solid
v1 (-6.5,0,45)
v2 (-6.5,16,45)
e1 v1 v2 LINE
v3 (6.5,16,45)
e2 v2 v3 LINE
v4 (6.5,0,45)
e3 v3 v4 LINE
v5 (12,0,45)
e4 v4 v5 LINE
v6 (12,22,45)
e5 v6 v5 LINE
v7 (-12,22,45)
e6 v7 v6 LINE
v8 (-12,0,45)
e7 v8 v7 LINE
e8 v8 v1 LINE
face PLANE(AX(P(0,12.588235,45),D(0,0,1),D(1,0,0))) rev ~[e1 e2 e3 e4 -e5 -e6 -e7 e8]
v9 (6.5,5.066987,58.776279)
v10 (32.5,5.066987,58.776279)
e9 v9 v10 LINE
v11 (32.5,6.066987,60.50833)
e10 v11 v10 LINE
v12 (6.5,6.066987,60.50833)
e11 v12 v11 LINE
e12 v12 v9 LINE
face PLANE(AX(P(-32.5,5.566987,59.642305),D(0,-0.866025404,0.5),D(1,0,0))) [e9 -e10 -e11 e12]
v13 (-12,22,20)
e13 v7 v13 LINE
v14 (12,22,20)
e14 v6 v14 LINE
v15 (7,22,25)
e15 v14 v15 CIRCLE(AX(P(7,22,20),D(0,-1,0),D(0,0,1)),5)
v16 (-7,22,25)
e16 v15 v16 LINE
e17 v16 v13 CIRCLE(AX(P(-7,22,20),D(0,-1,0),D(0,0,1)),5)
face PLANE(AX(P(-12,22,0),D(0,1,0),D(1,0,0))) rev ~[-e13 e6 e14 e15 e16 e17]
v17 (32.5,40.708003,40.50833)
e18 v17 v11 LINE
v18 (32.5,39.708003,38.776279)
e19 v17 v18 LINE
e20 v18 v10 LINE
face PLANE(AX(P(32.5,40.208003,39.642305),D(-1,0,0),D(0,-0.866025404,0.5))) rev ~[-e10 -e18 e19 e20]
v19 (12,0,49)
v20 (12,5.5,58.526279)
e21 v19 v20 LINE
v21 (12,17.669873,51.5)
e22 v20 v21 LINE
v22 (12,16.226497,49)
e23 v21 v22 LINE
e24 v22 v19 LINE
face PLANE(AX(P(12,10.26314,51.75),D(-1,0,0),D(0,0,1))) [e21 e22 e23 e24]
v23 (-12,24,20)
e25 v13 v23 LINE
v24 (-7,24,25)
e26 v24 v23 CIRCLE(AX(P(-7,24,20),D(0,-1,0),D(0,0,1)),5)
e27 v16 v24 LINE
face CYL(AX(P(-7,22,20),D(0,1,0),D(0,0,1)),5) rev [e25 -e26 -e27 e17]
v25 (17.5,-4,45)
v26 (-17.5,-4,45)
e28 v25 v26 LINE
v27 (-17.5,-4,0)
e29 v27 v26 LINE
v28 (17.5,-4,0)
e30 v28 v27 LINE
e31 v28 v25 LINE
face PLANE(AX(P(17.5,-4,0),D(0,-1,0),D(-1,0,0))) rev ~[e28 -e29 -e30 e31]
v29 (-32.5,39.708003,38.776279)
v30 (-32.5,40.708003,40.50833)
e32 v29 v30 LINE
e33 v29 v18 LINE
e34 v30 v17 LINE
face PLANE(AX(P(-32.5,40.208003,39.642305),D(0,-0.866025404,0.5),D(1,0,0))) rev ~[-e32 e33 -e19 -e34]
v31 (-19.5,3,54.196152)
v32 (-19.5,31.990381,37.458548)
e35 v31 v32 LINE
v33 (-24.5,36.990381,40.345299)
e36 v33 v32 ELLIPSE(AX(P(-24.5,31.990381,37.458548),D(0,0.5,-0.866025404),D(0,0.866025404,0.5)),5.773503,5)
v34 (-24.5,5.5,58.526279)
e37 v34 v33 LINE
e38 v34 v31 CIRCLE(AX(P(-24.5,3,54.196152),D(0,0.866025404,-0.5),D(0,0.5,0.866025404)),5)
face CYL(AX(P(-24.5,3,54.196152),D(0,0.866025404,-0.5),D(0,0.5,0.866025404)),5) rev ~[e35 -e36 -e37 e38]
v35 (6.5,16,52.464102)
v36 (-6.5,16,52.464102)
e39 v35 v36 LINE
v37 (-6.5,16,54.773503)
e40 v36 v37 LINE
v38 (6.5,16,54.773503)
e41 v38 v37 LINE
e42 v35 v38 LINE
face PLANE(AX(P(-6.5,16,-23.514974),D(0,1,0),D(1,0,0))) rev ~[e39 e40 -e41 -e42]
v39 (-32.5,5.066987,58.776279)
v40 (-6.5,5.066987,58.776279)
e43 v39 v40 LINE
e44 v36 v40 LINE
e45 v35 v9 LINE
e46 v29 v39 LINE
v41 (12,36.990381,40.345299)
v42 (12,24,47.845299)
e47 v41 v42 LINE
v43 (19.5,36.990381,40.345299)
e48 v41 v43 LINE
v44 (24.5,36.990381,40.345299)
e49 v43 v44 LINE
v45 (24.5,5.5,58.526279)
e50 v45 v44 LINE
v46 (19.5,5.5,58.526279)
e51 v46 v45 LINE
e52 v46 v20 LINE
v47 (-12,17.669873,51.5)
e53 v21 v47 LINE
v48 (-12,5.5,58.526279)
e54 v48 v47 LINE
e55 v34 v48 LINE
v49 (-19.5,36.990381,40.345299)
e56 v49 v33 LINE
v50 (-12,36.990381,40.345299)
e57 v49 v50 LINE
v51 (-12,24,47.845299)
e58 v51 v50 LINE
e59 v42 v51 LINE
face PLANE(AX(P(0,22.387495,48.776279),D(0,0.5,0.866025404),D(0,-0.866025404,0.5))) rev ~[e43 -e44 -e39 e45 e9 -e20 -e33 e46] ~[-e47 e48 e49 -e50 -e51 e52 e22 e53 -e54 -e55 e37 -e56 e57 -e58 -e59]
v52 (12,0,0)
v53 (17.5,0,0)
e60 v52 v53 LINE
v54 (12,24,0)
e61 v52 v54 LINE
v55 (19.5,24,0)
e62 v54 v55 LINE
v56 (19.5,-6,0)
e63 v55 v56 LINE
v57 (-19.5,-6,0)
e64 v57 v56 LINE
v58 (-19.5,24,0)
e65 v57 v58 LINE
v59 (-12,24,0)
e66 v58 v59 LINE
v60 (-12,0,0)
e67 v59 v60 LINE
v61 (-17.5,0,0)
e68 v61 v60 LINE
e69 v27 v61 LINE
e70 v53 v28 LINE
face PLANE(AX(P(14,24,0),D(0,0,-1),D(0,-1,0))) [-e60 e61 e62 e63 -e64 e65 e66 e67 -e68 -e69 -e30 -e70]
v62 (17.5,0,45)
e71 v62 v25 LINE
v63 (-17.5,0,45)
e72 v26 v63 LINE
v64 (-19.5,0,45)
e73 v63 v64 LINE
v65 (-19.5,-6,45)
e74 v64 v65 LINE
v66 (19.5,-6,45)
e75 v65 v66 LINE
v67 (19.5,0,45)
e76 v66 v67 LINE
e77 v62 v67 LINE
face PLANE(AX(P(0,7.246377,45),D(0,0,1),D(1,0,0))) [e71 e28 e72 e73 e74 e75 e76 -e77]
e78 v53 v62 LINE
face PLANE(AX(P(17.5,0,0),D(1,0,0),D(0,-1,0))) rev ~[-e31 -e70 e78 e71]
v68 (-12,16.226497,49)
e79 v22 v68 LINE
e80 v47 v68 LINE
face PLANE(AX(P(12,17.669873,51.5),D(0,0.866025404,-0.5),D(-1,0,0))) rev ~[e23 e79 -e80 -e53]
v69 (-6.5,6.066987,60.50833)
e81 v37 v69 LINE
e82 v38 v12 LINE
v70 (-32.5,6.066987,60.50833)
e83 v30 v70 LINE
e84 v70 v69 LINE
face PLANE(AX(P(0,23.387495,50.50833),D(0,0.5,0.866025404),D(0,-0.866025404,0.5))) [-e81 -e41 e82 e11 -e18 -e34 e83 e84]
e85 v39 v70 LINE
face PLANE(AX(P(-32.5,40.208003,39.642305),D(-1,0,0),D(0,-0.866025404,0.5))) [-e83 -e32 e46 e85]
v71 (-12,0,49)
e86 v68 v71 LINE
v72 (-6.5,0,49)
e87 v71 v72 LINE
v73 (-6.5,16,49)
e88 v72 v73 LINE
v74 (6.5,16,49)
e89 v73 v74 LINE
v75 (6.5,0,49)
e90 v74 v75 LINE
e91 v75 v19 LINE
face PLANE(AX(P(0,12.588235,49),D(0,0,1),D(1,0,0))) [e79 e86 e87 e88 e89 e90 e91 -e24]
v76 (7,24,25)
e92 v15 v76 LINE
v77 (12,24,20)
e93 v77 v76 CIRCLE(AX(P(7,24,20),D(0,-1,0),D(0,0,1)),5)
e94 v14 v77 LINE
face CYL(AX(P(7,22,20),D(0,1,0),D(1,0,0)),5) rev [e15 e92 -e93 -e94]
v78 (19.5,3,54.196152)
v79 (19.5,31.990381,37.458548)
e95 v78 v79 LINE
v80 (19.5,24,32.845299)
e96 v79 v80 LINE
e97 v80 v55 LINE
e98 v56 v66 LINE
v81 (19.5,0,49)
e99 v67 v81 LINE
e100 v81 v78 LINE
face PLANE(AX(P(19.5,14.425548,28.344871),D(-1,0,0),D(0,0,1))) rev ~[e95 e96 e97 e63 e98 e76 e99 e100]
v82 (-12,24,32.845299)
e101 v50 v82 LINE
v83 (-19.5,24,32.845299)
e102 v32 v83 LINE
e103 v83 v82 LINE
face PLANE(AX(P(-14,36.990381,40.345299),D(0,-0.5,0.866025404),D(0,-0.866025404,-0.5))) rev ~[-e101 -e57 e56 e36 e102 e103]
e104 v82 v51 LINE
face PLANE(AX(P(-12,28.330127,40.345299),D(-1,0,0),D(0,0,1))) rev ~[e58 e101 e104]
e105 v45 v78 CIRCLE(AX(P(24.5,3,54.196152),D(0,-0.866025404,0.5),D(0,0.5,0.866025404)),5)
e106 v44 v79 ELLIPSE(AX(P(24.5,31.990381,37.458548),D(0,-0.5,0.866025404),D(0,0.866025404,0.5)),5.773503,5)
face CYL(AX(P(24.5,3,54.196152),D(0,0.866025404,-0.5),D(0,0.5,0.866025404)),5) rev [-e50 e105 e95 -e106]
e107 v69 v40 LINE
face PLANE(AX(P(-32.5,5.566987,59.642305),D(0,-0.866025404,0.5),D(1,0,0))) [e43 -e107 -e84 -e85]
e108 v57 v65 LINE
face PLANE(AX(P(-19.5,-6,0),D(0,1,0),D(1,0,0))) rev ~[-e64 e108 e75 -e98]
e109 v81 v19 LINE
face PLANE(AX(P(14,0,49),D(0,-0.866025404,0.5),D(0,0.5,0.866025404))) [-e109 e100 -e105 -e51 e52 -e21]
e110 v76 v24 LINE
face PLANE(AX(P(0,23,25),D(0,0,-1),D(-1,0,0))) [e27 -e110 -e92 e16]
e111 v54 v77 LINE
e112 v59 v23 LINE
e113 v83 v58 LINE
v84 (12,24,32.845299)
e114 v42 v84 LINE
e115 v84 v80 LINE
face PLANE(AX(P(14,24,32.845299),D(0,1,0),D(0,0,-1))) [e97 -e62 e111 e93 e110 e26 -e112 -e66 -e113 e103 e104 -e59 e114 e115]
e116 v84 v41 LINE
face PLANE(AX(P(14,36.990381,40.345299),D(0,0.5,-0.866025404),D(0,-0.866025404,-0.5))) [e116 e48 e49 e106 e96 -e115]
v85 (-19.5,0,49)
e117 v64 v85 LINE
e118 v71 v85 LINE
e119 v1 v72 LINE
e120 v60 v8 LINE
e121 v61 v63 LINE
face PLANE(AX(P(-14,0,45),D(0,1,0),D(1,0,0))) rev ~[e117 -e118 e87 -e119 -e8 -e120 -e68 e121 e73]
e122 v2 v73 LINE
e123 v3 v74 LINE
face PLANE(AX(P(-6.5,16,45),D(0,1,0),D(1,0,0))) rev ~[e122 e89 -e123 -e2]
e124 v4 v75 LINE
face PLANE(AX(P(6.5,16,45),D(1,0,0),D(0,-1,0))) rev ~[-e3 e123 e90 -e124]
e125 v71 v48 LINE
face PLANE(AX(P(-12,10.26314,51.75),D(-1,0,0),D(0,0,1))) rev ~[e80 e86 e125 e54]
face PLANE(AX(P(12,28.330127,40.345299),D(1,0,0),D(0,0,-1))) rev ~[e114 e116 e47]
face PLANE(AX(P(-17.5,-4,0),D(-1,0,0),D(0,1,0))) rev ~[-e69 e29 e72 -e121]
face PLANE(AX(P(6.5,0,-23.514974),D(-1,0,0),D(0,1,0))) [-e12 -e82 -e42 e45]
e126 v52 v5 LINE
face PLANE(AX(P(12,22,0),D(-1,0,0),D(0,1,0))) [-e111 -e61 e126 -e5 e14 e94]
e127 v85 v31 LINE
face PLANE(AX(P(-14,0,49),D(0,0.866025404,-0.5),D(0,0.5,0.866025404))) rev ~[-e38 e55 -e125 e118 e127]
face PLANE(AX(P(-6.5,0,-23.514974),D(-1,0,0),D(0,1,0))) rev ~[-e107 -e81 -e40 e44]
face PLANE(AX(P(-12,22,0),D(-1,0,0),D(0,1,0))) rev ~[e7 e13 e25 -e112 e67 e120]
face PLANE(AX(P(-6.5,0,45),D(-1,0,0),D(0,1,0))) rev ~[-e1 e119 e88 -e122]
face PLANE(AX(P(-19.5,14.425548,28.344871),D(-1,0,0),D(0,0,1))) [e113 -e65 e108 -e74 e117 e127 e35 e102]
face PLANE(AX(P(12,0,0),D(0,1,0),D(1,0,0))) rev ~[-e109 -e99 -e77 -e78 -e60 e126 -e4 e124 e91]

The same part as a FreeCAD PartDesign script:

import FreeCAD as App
import Part
import Sketcher
from FreeCAD import Vector
Q = App.Units.Quantity


def edges_at(feature, points):
    """Names of the edges that pass closest to the given points."""
    edges = feature.Shape.Edges
    near = lambda p: min(range(len(edges)), key=lambda i: edges[i].distToShape(Part.Vertex(*p))[0])
    return sorted({f"Edge{near(p) + 1}" for p in points})

doc = App.newDocument("Part")
params = doc.addObject("Spreadsheet::Sheet", "Params")
for row, (alias, value) in enumerate([
    ("sketch1_width", "39 mm"),
    ("sketch1_width2", "28 mm"),
    ("sketch1_width3", "24 mm"),
    ("sketch1_height", "22 mm"),
    ("sketch1_height2", "8 mm"),
    ("pad1_length", "45 mm"),
    ("sketch2_width", "13 mm"),
    ("sketch2_width2", "28 mm"),
    ("sketch2_height", "24 mm"),
    ("sketch2_height2", "16 mm"),
    ("pad2_length", "4 mm"),
    ("sketch3_width", "24 mm"),
    ("sketch3_height", "2 mm"),
    ("pocket1_length", "25 mm"),
    ("sketch4_width", "40 mm"),
    ("sketch4_height", "65 mm"),
    ("pad3_length", "2 mm"),
    ("sketch5_width", "13 mm"),
    ("sketch5_height", "16 mm"),
    ("sketch6_height", "15 mm"),
    ("pad4_length", "2 mm"),
    ("sketch7_height", "15 mm"),
    ("pad5_length", "2 mm"),
    ("sketch8_width", "22 mm"),
    ("pad6_length", "2 mm"),
    ("sketch9_width", "22 mm"),
    ("pad7_length", "2 mm"),
    ("fillet_radius", "5 mm"),
    ("sketch10_width", "22 mm"),
    ("sketch10_width2", "2 mm"),
    ("sketch10_height", "45 mm"),
    ("sketch10_height2", "4 mm"),
    ("sketch10_length", "11 mm"),
    ("pad8_length", "5.5 mm"),
    ("sketch11_width", "22 mm"),
    ("sketch11_width2", "2 mm"),
    ("sketch11_height", "4 mm"),
    ("sketch11_height2", "45 mm"),
    ("sketch11_length", "15 mm"),
    ("pad9_length", "5.5 mm"),
    ("sketch12_width", "24 mm"),
    ("sketch12_height", "5 mm"),
    ("pad10_length", "3 mm"),
    ("fillet2_radius", "5 mm"),
], start=1):
    params.set(f"A{row}", alias)
    params.set(f"B{row}", "=" + value)
    params.setAlias(f"B{row}", alias)

body = doc.addObject("PartDesign::Body", "Body")

# Sketch on XY plane
sketch1 = body.newObject("Sketcher::SketchObject", "Sketch")
sketch1.AttachmentSupport = (doc.getObject("XY_Plane"), [""])
sketch1.MapMode = "FlatFace"
sketch1.addGeometry([
    Part.LineSegment(Vector(-14, 24, 0), Vector(-14, 2, 0)),  # 0
    Part.LineSegment(Vector(-14, 2, 0), Vector(-19.5, 2, 0)),  # 1
    Part.LineSegment(Vector(-19.5, 2, 0), Vector(-19.5, -6, 0)),  # 2
    Part.LineSegment(Vector(-19.5, -6, 0), Vector(19.5, -6, 0)),  # 3
    Part.LineSegment(Vector(19.5, -6, 0), Vector(19.5, 2, 0)),  # 4
    Part.LineSegment(Vector(19.5, 2, 0), Vector(14, 2, 0)),  # 5
    Part.LineSegment(Vector(14, 2, 0), Vector(14, 24, 0)),  # 6
    Part.LineSegment(Vector(14, 24, 0), Vector(-14, 24, 0)),  # 7
    Part.LineSegment(Vector(-17.5, 0, 0), Vector(-12, 0, 0)),  # 8
    Part.LineSegment(Vector(-12, 0, 0), Vector(-12, 22, 0)),  # 9
    Part.LineSegment(Vector(-12, 22, 0), Vector(12, 22, 0)),  # 10
    Part.LineSegment(Vector(12, 22, 0), Vector(12, 0, 0)),  # 11
    Part.LineSegment(Vector(12, 0, 0), Vector(17.5, 0, 0)),  # 12
    Part.LineSegment(Vector(17.5, 0, 0), Vector(17.5, -4, 0)),  # 13
    Part.LineSegment(Vector(17.5, -4, 0), Vector(-17.5, -4, 0)),  # 14
    Part.LineSegment(Vector(-17.5, -4, 0), Vector(-17.5, 0, 0)),  # 15
], False)
sketch1.addConstraint([
    Sketcher.Constraint("Coincident", 0, 2, 1, 1),
    Sketcher.Constraint("Coincident", 1, 2, 2, 1),
    Sketcher.Constraint("Coincident", 2, 2, 3, 1),
    Sketcher.Constraint("Coincident", 3, 2, 4, 1),
    Sketcher.Constraint("Coincident", 4, 2, 5, 1),
    Sketcher.Constraint("Coincident", 5, 2, 6, 1),
    Sketcher.Constraint("Coincident", 6, 2, 7, 1),
    Sketcher.Constraint("Coincident", 7, 2, 0, 1),
    Sketcher.Constraint("Coincident", 8, 2, 9, 1),
    Sketcher.Constraint("Coincident", 9, 2, 10, 1),
    Sketcher.Constraint("Coincident", 10, 2, 11, 1),
    Sketcher.Constraint("Coincident", 11, 2, 12, 1),
    Sketcher.Constraint("Coincident", 12, 2, 13, 1),
    Sketcher.Constraint("Coincident", 13, 2, 14, 1),
    Sketcher.Constraint("Coincident", 14, 2, 15, 1),
    Sketcher.Constraint("Coincident", 15, 2, 8, 1),
    Sketcher.Constraint("Vertical", 0),
    Sketcher.Constraint("Horizontal", 1),
    Sketcher.Constraint("Vertical", 2),
    Sketcher.Constraint("Horizontal", 3),
    Sketcher.Constraint("Vertical", 4),
    Sketcher.Constraint("Horizontal", 5),
    Sketcher.Constraint("Vertical", 6),
    Sketcher.Constraint("Horizontal", 7),
    Sketcher.Constraint("Horizontal", 8),
    Sketcher.Constraint("Vertical", 9),
    Sketcher.Constraint("Horizontal", 10),
    Sketcher.Constraint("Vertical", 11),
    Sketcher.Constraint("Horizontal", 12),
    Sketcher.Constraint("Vertical", 13),
    Sketcher.Constraint("Horizontal", 14),
    Sketcher.Constraint("Vertical", 15),
    Sketcher.Constraint("Symmetric", 8, 2, 11, 2, -1, 1),
    Sketcher.Constraint("Symmetric", 1, 2, 4, 2, -2),
    Sketcher.Constraint("Symmetric", 12, 2, 15, 2, -2),
    Sketcher.Constraint("Equal", 1, 5),
    Sketcher.Constraint("Equal", 5, 8),
    Sketcher.Constraint("Equal", 6, 9),
    Sketcher.Constraint("DistanceX", 3, 1, 3, 2, 39.0),
    Sketcher.Constraint("DistanceX", 7, 2, 7, 1, 28.0),
    Sketcher.Constraint("DistanceX", 10, 1, 10, 2, 24.0),
    Sketcher.Constraint("DistanceY", 0, 2, 0, 1, 22.0),
    Sketcher.Constraint("DistanceY", 2, 2, 2, 1, 8.0),
    Sketcher.Constraint("DistanceY", 13, 2, 13, 1, 4.0),
    Sketcher.Constraint("DistanceY", -1, 1, 0, 2, 2.0),
])
sketch1.setExpression("Constraints[38]", "Params.sketch1_width")
sketch1.setExpression("Constraints[39]", "Params.sketch1_width2")
sketch1.setExpression("Constraints[40]", "Params.sketch1_width3")
sketch1.setExpression("Constraints[41]", "Params.sketch1_height")
sketch1.setExpression("Constraints[42]", "Params.sketch1_height2")
pad1 = body.newObject("PartDesign::Pad", "Pad")
pad1.Profile = sketch1
pad1.setExpression("Length", "Params.pad1_length")

# Sketch on XY plane
sketch2 = body.newObject("Sketcher::SketchObject", "Sketch001")
sketch2.AttachmentSupport = (doc.getObject("XY_Plane"), [""])
sketch2.MapMode = "FlatFace"
sketch2.AttachmentOffset = App.Placement(Vector(0, 0, 45), App.Rotation())
sketch2.addGeometry([
    Part.LineSegment(Vector(-14, 24, 0), Vector(-14, 0, 0)),  # 0
    Part.LineSegment(Vector(-14, 0, 0), Vector(-6, 0, 0)),  # 1
    Part.LineSegment(Vector(-6, 0, 0), Vector(-6, 16, 0)),  # 2
    Part.LineSegment(Vector(-6, 16, 0), Vector(6, 16, 0)),  # 3
    Part.LineSegment(Vector(6, 16, 0), Vector(6, 0, 0)),  # 4
    Part.LineSegment(Vector(6, 0, 0), Vector(14, 0, 0)),  # 5
    Part.LineSegment(Vector(14, 0, 0), Vector(14, 24, 0)),  # 6
    Part.LineSegment(Vector(14, 24, 0), Vector(-14, 24, 0)),  # 7
], False)
sketch2.addConstraint([
    Sketcher.Constraint("Coincident", 0, 2, 1, 1),
    Sketcher.Constraint("Coincident", 1, 2, 2, 1),
    Sketcher.Constraint("Coincident", 2, 2, 3, 1),
    Sketcher.Constraint("Coincident", 3, 2, 4, 1),
    Sketcher.Constraint("Coincident", 4, 2, 5, 1),
    Sketcher.Constraint("Coincident", 5, 2, 6, 1),
    Sketcher.Constraint("Coincident", 6, 2, 7, 1),
    Sketcher.Constraint("Coincident", 7, 2, 0, 1),
    Sketcher.Constraint("Vertical", 0),
    Sketcher.Constraint("Horizontal", 1),
    Sketcher.Constraint("Vertical", 2),
    Sketcher.Constraint("Horizontal", 3),
    Sketcher.Constraint("Vertical", 4),
    Sketcher.Constraint("Horizontal", 5),
    Sketcher.Constraint("Vertical", 6),
    Sketcher.Constraint("Horizontal", 7),
    Sketcher.Constraint("Symmetric", 1, 2, 4, 2, -1, 1),
    Sketcher.Constraint("Symmetric", 0, 2, 5, 2, -2),
    Sketcher.Constraint("DistanceX", 3, 1, 3, 2, 13.0),
    Sketcher.Constraint("DistanceX", 7, 2, 7, 1, 28.0),
    Sketcher.Constraint("DistanceY", 0, 2, 0, 1, 24.0),
    Sketcher.Constraint("DistanceY", 2, 1, 2, 2, 16.0),
])
sketch2.setExpression("Constraints[18]", "Params.sketch2_width")
sketch2.setExpression("Constraints[19]", "Params.sketch2_width2")
sketch2.setExpression("Constraints[20]", "Params.sketch2_height")
sketch2.setExpression("Constraints[21]", "Params.sketch2_height2")
pad2 = body.newObject("PartDesign::Pad", "Pad001")
pad2.Profile = sketch2
pad2.setExpression("Length", "Params.pad2_length")

# Sketch on XY plane
sketch3 = body.newObject("Sketcher::SketchObject", "Sketch002")
sketch3.AttachmentSupport = (doc.getObject("XY_Plane"), [""])
sketch3.MapMode = "FlatFace"
sketch3.addGeometry([
    Part.LineSegment(Vector(12, 24, 0), Vector(12, 22, 0)),
    Part.LineSegment(Vector(12, 22, 0), Vector(-12, 22, 0)),
    Part.LineSegment(Vector(-12, 22, 0), Vector(-12, 24, 0)),
    Part.LineSegment(Vector(-12, 24, 0), Vector(12, 24, 0)),
], False)
sketch3.addConstraint([
    Sketcher.Constraint("Coincident", 0, 2, 1, 1),
    Sketcher.Constraint("Coincident", 1, 2, 2, 1),
    Sketcher.Constraint("Coincident", 2, 2, 3, 1),
    Sketcher.Constraint("Coincident", 3, 2, 0, 1),
    Sketcher.Constraint("Vertical", 0),
    Sketcher.Constraint("Horizontal", 1),
    Sketcher.Constraint("Vertical", 2),
    Sketcher.Constraint("Horizontal", 3),
    Sketcher.Constraint("DistanceX", 1, 2, 1, 1, 24.0),
    Sketcher.Constraint("DistanceY", 0, 2, 0, 1, 2.0),
    Sketcher.Constraint("DistanceX", -1, 1, 0, 2, 12.0),
    Sketcher.Constraint("DistanceY", -1, 1, 0, 2, 22.0),
])
sketch3.setExpression("Constraints[8]", "Params.sketch3_width")
sketch3.setExpression("Constraints[9]", "Params.sketch3_height")
pocket1 = body.newObject("PartDesign::Pocket", "Pocket")
pocket1.Profile = sketch3
pocket1.setExpression("Length", "Params.pocket1_length")
pocket1.Reversed = True
body2 = doc.addObject("PartDesign::Body", "Body001")

# Sketch on an angled plane
sketch4 = body2.newObject("Sketcher::SketchObject", "Sketch003")
sketch4.Placement = App.Placement(Vector(0, 27.217622, 47.142305), App.Rotation(Vector(0, -0.866025404, 0.5), Vector(1, 0, 0), Vector(0, 0.5, 0.866025404), "ZXY"))
sketch4.addGeometry([
    Part.LineSegment(Vector(-15, 33, 0), Vector(-15, -33, 0)),
    Part.LineSegment(Vector(-15, -33, 0), Vector(25, -33, 0)),
    Part.LineSegment(Vector(25, -33, 0), Vector(25, 33, 0)),
    Part.LineSegment(Vector(25, 33, 0), Vector(-15, 33, 0)),
], False)
sketch4.addConstraint([
    Sketcher.Constraint("Coincident", 0, 2, 1, 1),
    Sketcher.Constraint("Coincident", 1, 2, 2, 1),
    Sketcher.Constraint("Coincident", 2, 2, 3, 1),
    Sketcher.Constraint("Coincident", 3, 2, 0, 1),
    Sketcher.Constraint("Vertical", 0),
    Sketcher.Constraint("Horizontal", 1),
    Sketcher.Constraint("Vertical", 2),
    Sketcher.Constraint("Horizontal", 3),
    Sketcher.Constraint("DistanceX", 1, 1, 1, 2, 40.0),
    Sketcher.Constraint("DistanceY", 0, 2, 0, 1, 65.0),
    Sketcher.Constraint("DistanceX", 0, 2, -1, 1, 15.0),
    Sketcher.Constraint("DistanceY", 0, 2, -1, 1, 32.5),
])
sketch4.setExpression("Constraints[8]", "Params.sketch4_width")
sketch4.setExpression("Constraints[9]", "Params.sketch4_height")
pad3 = body2.newObject("PartDesign::Pad", "Pad002")
pad3.Profile = sketch4
pad3.setExpression("Length", "Params.pad3_length")
pad3.Midplane = True

# Sketch on XY plane
sketch5 = body2.newObject("Sketcher::SketchObject", "Sketch004")
sketch5.AttachmentSupport = (doc.getObject("XY_Plane001"), [""])
sketch5.MapMode = "FlatFace"
sketch5.AttachmentOffset = App.Placement(Vector(0, 0, 49), App.Rotation())
sketch5.addGeometry([
    Part.LineSegment(Vector(-6, 16, 0), Vector(-6, 0, 0)),
    Part.LineSegment(Vector(-6, 0, 0), Vector(6, 0, 0)),
    Part.LineSegment(Vector(6, 0, 0), Vector(6, 16, 0)),
    Part.LineSegment(Vector(6, 16, 0), Vector(-6, 16, 0)),
], False)
sketch5.addConstraint([
    Sketcher.Constraint("Coincident", 0, 2, 1, 1),
    Sketcher.Constraint("Coincident", 1, 2, 2, 1),
    Sketcher.Constraint("Coincident", 2, 2, 3, 1),
    Sketcher.Constraint("Coincident", 3, 2, 0, 1),
    Sketcher.Constraint("Vertical", 0),
    Sketcher.Constraint("Horizontal", 1),
    Sketcher.Constraint("Vertical", 2),
    Sketcher.Constraint("Horizontal", 3),
    Sketcher.Constraint("Symmetric", 0, 2, 1, 2, -1, 1),
    Sketcher.Constraint("DistanceX", 1, 1, 1, 2, 13.0),
    Sketcher.Constraint("DistanceY", 0, 2, 0, 1, 16.0),
])
sketch5.setExpression("Constraints[9]", "Params.sketch5_width")
sketch5.setExpression("Constraints[10]", "Params.sketch5_height")
pocket2 = body2.newObject("PartDesign::Pocket", "Pocket001")
pocket2.Profile = sketch5
pocket2.Type = "ThroughAll"
pocket2.Midplane = True
doc.recompute()

boolean = body.newObject("PartDesign::Boolean", "Boolean")
boolean.Type = "Fuse"
boolean.addObjects([body2])

# Sketch on YZ plane
sketch6 = body.newObject("Sketcher::SketchObject", "Sketch005")
sketch6.AttachmentSupport = (doc.getObject("YZ_Plane"), [""])
sketch6.MapMode = "FlatFace"
sketch6.AttachmentOffset = App.Placement(Vector(0, 0, -14), App.Rotation())
sketch6.addGeometry([
    Part.LineSegment(Vector(37, 40, 0), Vector(24, 33, 0)),
    Part.LineSegment(Vector(24, 33, 0), Vector(24, 48, 0)),
    Part.LineSegment(Vector(24, 48, 0), Vector(37, 40, 0)),
], False)
sketch6.addConstraint([
    Sketcher.Constraint("Coincident", 0, 2, 1, 1),
    Sketcher.Constraint("Coincident", 1, 2, 2, 1),
    Sketcher.Constraint("Coincident", 2, 2, 0, 1),
    Sketcher.Constraint("Vertical", 1),
    Sketcher.Constraint("Equal", 0, 2),
    Sketcher.Constraint("DistanceY", 1, 1, 1, 2, 15.0),
    Sketcher.Constraint("Angle", 0, Q("-150 deg")),
    Sketcher.Constraint("DistanceX", -1, 1, 0, 2, 24.0),
    Sketcher.Constraint("DistanceY", -1, 1, 0, 2, 32.845299),
])
sketch6.setExpression("Constraints[5]", "Params.sketch6_height")
pad4 = body.newObject("PartDesign::Pad", "Pad003")
pad4.Profile = sketch6
pad4.setExpression("Length", "Params.pad4_length")

# Sketch on YZ plane
sketch7 = body.newObject("Sketcher::SketchObject", "Sketch006")
sketch7.AttachmentSupport = (doc.getObject("YZ_Plane"), [""])
sketch7.MapMode = "FlatFace"
sketch7.AttachmentOffset = App.Placement(Vector(0, 0, 14), App.Rotation())
sketch7.addGeometry([
    Part.LineSegment(Vector(24, 48, 0), Vector(24, 33, 0)),
    Part.LineSegment(Vector(24, 33, 0), Vector(37, 40, 0)),
    Part.LineSegment(Vector(37, 40, 0), Vector(24, 48, 0)),
], False)
sketch7.addConstraint([
    Sketcher.Constraint("Coincident", 0, 2, 1, 1),
    Sketcher.Constraint("Coincident", 1, 2, 2, 1),
    Sketcher.Constraint("Coincident", 2, 2, 0, 1),
    Sketcher.Constraint("Vertical", 0),
    Sketcher.Constraint("Equal", 1, 2),
    Sketcher.Constraint("DistanceY", 0, 2, 0, 1, 15.0),
    Sketcher.Constraint("Angle", 1, Q("30 deg")),
    Sketcher.Constraint("DistanceX", -1, 1, 0, 2, 24.0),
    Sketcher.Constraint("DistanceY", -1, 1, 0, 2, 32.845299),
])
sketch7.setExpression("Constraints[5]", "Params.sketch7_height")
pad5 = body.newObject("PartDesign::Pad", "Pad004")
pad5.Profile = sketch7
pad5.setExpression("Length", "Params.pad5_length")
pad5.Reversed = True

# Sketch on YZ plane
sketch8 = body.newObject("Sketcher::SketchObject", "Sketch007")
sketch8.AttachmentSupport = (doc.getObject("YZ_Plane"), [""])
sketch8.MapMode = "FlatFace"
sketch8.AttachmentOffset = App.Placement(Vector(0, 0, -14), App.Rotation())
sketch8.addGeometry([
    Part.LineSegment(Vector(22, 49, 0), Vector(0, 49, 0)),
    Part.LineSegment(Vector(0, 49, 0), Vector(6, 59, 0)),
    Part.LineSegment(Vector(6, 59, 0), Vector(22, 49, 0)),
], False)
sketch8.addConstraint([
    Sketcher.Constraint("Coincident", 0, 2, 1, 1),
    Sketcher.Constraint("Coincident", 1, 2, 2, 1),
    Sketcher.Constraint("Coincident", 2, 2, 0, 1),
    Sketcher.Constraint("Horizontal", 0),
    Sketcher.Constraint("PointOnObject", 0, 2, -2),
    Sketcher.Constraint("Perpendicular", 1, 2),
    Sketcher.Constraint("DistanceX", 0, 2, 0, 1, 22.0),
    Sketcher.Constraint("Angle", 1, Q("60 deg")),
    Sketcher.Constraint("DistanceY", -1, 1, 0, 2, 49.0),
])
sketch8.setExpression("Constraints[6]", "Params.sketch8_width")
pad6 = body.newObject("PartDesign::Pad", "Pad005")
pad6.Profile = sketch8
pad6.setExpression("Length", "Params.pad6_length")

# Sketch on YZ plane
sketch9 = body.newObject("Sketcher::SketchObject", "Sketch008")
sketch9.AttachmentSupport = (doc.getObject("YZ_Plane"), [""])
sketch9.MapMode = "FlatFace"
sketch9.AttachmentOffset = App.Placement(Vector(0, 0, 14), App.Rotation())
sketch9.addGeometry([
    Part.LineSegment(Vector(0, 49, 0), Vector(22, 49, 0)),
    Part.LineSegment(Vector(22, 49, 0), Vector(6, 59, 0)),
    Part.LineSegment(Vector(6, 59, 0), Vector(0, 49, 0)),
], False)
sketch9.addConstraint([
    Sketcher.Constraint("Coincident", 0, 2, 1, 1),
    Sketcher.Constraint("Coincident", 1, 2, 2, 1),
    Sketcher.Constraint("Coincident", 2, 2, 0, 1),
    Sketcher.Constraint("Horizontal", 0),
    Sketcher.Constraint("PointOnObject", 2, 2, -2),
    Sketcher.Constraint("Perpendicular", 1, 2),
    Sketcher.Constraint("DistanceX", 0, 1, 0, 2, 22.0),
    Sketcher.Constraint("Angle", 1, Q("150 deg")),
    Sketcher.Constraint("DistanceY", -1, 1, 0, 2, 49.0),
])
sketch9.setExpression("Constraints[6]", "Params.sketch9_width")
pad7 = body.newObject("PartDesign::Pad", "Pad006")
pad7.Profile = sketch9
pad7.setExpression("Length", "Params.pad7_length")
pad7.Reversed = True
doc.recompute()

fillet = body.newObject("PartDesign::Fillet", "Fillet")
fillet.Base = (pad7, edges_at(pad7, [(12, 23, 25), (-12, 23, 25)]))
fillet.setExpression("Radius", "Params.fillet_radius")

# Sketch on YZ plane
sketch10 = body.newObject("Sketcher::SketchObject", "Sketch009")
sketch10.AttachmentSupport = (doc.getObject("YZ_Plane"), [""])
sketch10.MapMode = "FlatFace"
sketch10.AttachmentOffset = App.Placement(Vector(0, 0, -14), App.Rotation())
sketch10.addGeometry([
    Part.LineSegment(Vector(24, 0, 0), Vector(2, 0, 0)),  # 0
    Part.LineSegment(Vector(2, 0, 0), Vector(2, 45, 0)),  # 1
    Part.LineSegment(Vector(2, 45, 0), Vector(0, 45, 0)),  # 2
    Part.LineSegment(Vector(0, 45, 0), Vector(0, 49, 0)),  # 3
    Part.LineSegment(Vector(0, 49, 0), Vector(5.5, 58.5, 0)),  # 4
    Part.LineSegment(Vector(5.5, 58.5, 0), Vector(37, 40.3, 0)),  # 5
    Part.LineSegment(Vector(37, 40.3, 0), Vector(24, 32.8, 0)),  # 6
    Part.LineSegment(Vector(24, 32.8, 0), Vector(24, 0, 0)),  # 7
], False)
sketch10.addConstraint([
    Sketcher.Constraint("Coincident", 0, 2, 1, 1),
    Sketcher.Constraint("Coincident", 1, 2, 2, 1),
    Sketcher.Constraint("Coincident", 2, 2, 3, 1),
    Sketcher.Constraint("Coincident", 3, 2, 4, 1),
    Sketcher.Constraint("Coincident", 4, 2, 5, 1),
    Sketcher.Constraint("Coincident", 5, 2, 6, 1),
    Sketcher.Constraint("Coincident", 6, 2, 7, 1),
    Sketcher.Constraint("Coincident", 7, 2, 0, 1),
    Sketcher.Constraint("Horizontal", 0),
    Sketcher.Constraint("Vertical", 1),
    Sketcher.Constraint("Horizontal", 2),
    Sketcher.Constraint("Vertical", 3),
    Sketcher.Constraint("Vertical", 7),
    Sketcher.Constraint("PointOnObject", 0, 2, -1),
    Sketcher.Constraint("PointOnObject", 2, 2, -2),
    Sketcher.Constraint("Perpendicular", 4, 5),
    Sketcher.Constraint("DistanceX", 0, 2, 0, 1, 22.0),
    Sketcher.Constraint("DistanceX", 2, 2, 2, 1, 2.0),
    Sketcher.Constraint("DistanceY", 1, 1, 1, 2, 45.0),
    Sketcher.Constraint("DistanceY", 3, 1, 3, 2, 4.0),
    Sketcher.Constraint("Angle", 4, Q("60 deg")),
    Sketcher.Constraint("Angle", 6, Q("-150 deg")),
    Sketcher.Constraint("Distance", 4, 11.0),
    Sketcher.Constraint("Distance", 6, 15.0),
])
sketch10.setExpression("Constraints[16]", "Params.sketch10_width")
sketch10.setExpression("Constraints[17]", "Params.sketch10_width2")
sketch10.setExpression("Constraints[18]", "Params.sketch10_height")
sketch10.setExpression("Constraints[19]", "Params.sketch10_height2")
sketch10.setExpression("Constraints[22]", "Params.sketch10_length")
pad8 = body.newObject("PartDesign::Pad", "Pad007")
pad8.Profile = sketch10
pad8.setExpression("Length", "Params.pad8_length")
pad8.Reversed = True

# Sketch on YZ plane
sketch11 = body.newObject("Sketcher::SketchObject", "Sketch010")
sketch11.AttachmentSupport = (doc.getObject("YZ_Plane"), [""])
sketch11.MapMode = "FlatFace"
sketch11.AttachmentOffset = App.Placement(Vector(0, 0, 14), App.Rotation())
sketch11.addGeometry([
    Part.LineSegment(Vector(2, 0, 0), Vector(24, 0, 0)),  # 0
    Part.LineSegment(Vector(24, 0, 0), Vector(24, 32.8, 0)),  # 1
    Part.LineSegment(Vector(24, 32.8, 0), Vector(37, 40.3, 0)),  # 2
    Part.LineSegment(Vector(37, 40.3, 0), Vector(5.5, 58.5, 0)),  # 3
    Part.LineSegment(Vector(5.5, 58.5, 0), Vector(0, 49, 0)),  # 4
    Part.LineSegment(Vector(0, 49, 0), Vector(0, 45, 0)),  # 5
    Part.LineSegment(Vector(0, 45, 0), Vector(2, 45, 0)),  # 6
    Part.LineSegment(Vector(2, 45, 0), Vector(2, 0, 0)),  # 7
], False)
sketch11.addConstraint([
    Sketcher.Constraint("Coincident", 0, 2, 1, 1),
    Sketcher.Constraint("Coincident", 1, 2, 2, 1),
    Sketcher.Constraint("Coincident", 2, 2, 3, 1),
    Sketcher.Constraint("Coincident", 3, 2, 4, 1),
    Sketcher.Constraint("Coincident", 4, 2, 5, 1),
    Sketcher.Constraint("Coincident", 5, 2, 6, 1),
    Sketcher.Constraint("Coincident", 6, 2, 7, 1),
    Sketcher.Constraint("Coincident", 7, 2, 0, 1),
    Sketcher.Constraint("Horizontal", 0),
    Sketcher.Constraint("Vertical", 1),
    Sketcher.Constraint("Vertical", 5),
    Sketcher.Constraint("Horizontal", 6),
    Sketcher.Constraint("Vertical", 7),
    Sketcher.Constraint("PointOnObject", 0, 2, -1),
    Sketcher.Constraint("PointOnObject", 4, 2, -2),
    Sketcher.Constraint("Perpendicular", 3, 4),
    Sketcher.Constraint("DistanceX", 0, 1, 0, 2, 22.0),
    Sketcher.Constraint("DistanceX", 6, 1, 6, 2, 2.0),
    Sketcher.Constraint("DistanceY", 5, 2, 5, 1, 4.0),
    Sketcher.Constraint("DistanceY", 7, 2, 7, 1, 45.0),
    Sketcher.Constraint("Angle", 2, Q("30 deg")),
    Sketcher.Constraint("Angle", 3, Q("150 deg")),
    Sketcher.Constraint("Distance", 2, 15.0),
    Sketcher.Constraint("Distance", 4, 11.0),
])
sketch11.setExpression("Constraints[16]", "Params.sketch11_width")
sketch11.setExpression("Constraints[17]", "Params.sketch11_width2")
sketch11.setExpression("Constraints[18]", "Params.sketch11_height")
sketch11.setExpression("Constraints[19]", "Params.sketch11_height2")
sketch11.setExpression("Constraints[22]", "Params.sketch11_length")
pad9 = body.newObject("PartDesign::Pad", "Pad008")
pad9.Profile = sketch11
pad9.setExpression("Length", "Params.pad9_length")

# Sketch on an angled plane
sketch12 = body.newObject("Sketcher::SketchObject", "Sketch011")
sketch12.Placement = App.Placement(Vector(0, 26.717622, 46.276279), App.Rotation(Vector(-1, 0, 0), Vector(0, 0.866025404, -0.5), Vector(0, -0.5, -0.866025404), "ZXY"))
sketch12.addGeometry([
    Part.LineSegment(Vector(-12, -5, 0), Vector(-12, -10, 0)),
    Part.LineSegment(Vector(-12, -10, 0), Vector(12, -10, 0)),
    Part.LineSegment(Vector(12, -10, 0), Vector(12, -5, 0)),
    Part.LineSegment(Vector(12, -5, 0), Vector(-12, -5, 0)),
], False)
sketch12.addConstraint([
    Sketcher.Constraint("Coincident", 0, 2, 1, 1),
    Sketcher.Constraint("Coincident", 1, 2, 2, 1),
    Sketcher.Constraint("Coincident", 2, 2, 3, 1),
    Sketcher.Constraint("Coincident", 3, 2, 0, 1),
    Sketcher.Constraint("Vertical", 0),
    Sketcher.Constraint("Horizontal", 1),
    Sketcher.Constraint("Vertical", 2),
    Sketcher.Constraint("Horizontal", 3),
    Sketcher.Constraint("DistanceX", 1, 1, 1, 2, 24.0),
    Sketcher.Constraint("DistanceY", 0, 2, 0, 1, 5.0),
    Sketcher.Constraint("DistanceX", 0, 2, -1, 1, 12.0),
    Sketcher.Constraint("DistanceY", 0, 2, -1, 1, 10.447441),
])
sketch12.setExpression("Constraints[8]", "Params.sketch12_width")
sketch12.setExpression("Constraints[9]", "Params.sketch12_height")
pad10 = body.newObject("PartDesign::Pad", "Pad009")
pad10.Profile = sketch12
pad10.setExpression("Length", "Params.pad10_length")
doc.recompute()

fillet2 = body.newObject("PartDesign::Fillet", "Fillet001")
fillet2.Base = (pad10, edges_at(pad10, [(-19.5, 21.245, 49.436), (19.5, 21.245, 49.436)]))
fillet2.setExpression("Radius", "Params.fillet2_radius")

doc.recompute()
